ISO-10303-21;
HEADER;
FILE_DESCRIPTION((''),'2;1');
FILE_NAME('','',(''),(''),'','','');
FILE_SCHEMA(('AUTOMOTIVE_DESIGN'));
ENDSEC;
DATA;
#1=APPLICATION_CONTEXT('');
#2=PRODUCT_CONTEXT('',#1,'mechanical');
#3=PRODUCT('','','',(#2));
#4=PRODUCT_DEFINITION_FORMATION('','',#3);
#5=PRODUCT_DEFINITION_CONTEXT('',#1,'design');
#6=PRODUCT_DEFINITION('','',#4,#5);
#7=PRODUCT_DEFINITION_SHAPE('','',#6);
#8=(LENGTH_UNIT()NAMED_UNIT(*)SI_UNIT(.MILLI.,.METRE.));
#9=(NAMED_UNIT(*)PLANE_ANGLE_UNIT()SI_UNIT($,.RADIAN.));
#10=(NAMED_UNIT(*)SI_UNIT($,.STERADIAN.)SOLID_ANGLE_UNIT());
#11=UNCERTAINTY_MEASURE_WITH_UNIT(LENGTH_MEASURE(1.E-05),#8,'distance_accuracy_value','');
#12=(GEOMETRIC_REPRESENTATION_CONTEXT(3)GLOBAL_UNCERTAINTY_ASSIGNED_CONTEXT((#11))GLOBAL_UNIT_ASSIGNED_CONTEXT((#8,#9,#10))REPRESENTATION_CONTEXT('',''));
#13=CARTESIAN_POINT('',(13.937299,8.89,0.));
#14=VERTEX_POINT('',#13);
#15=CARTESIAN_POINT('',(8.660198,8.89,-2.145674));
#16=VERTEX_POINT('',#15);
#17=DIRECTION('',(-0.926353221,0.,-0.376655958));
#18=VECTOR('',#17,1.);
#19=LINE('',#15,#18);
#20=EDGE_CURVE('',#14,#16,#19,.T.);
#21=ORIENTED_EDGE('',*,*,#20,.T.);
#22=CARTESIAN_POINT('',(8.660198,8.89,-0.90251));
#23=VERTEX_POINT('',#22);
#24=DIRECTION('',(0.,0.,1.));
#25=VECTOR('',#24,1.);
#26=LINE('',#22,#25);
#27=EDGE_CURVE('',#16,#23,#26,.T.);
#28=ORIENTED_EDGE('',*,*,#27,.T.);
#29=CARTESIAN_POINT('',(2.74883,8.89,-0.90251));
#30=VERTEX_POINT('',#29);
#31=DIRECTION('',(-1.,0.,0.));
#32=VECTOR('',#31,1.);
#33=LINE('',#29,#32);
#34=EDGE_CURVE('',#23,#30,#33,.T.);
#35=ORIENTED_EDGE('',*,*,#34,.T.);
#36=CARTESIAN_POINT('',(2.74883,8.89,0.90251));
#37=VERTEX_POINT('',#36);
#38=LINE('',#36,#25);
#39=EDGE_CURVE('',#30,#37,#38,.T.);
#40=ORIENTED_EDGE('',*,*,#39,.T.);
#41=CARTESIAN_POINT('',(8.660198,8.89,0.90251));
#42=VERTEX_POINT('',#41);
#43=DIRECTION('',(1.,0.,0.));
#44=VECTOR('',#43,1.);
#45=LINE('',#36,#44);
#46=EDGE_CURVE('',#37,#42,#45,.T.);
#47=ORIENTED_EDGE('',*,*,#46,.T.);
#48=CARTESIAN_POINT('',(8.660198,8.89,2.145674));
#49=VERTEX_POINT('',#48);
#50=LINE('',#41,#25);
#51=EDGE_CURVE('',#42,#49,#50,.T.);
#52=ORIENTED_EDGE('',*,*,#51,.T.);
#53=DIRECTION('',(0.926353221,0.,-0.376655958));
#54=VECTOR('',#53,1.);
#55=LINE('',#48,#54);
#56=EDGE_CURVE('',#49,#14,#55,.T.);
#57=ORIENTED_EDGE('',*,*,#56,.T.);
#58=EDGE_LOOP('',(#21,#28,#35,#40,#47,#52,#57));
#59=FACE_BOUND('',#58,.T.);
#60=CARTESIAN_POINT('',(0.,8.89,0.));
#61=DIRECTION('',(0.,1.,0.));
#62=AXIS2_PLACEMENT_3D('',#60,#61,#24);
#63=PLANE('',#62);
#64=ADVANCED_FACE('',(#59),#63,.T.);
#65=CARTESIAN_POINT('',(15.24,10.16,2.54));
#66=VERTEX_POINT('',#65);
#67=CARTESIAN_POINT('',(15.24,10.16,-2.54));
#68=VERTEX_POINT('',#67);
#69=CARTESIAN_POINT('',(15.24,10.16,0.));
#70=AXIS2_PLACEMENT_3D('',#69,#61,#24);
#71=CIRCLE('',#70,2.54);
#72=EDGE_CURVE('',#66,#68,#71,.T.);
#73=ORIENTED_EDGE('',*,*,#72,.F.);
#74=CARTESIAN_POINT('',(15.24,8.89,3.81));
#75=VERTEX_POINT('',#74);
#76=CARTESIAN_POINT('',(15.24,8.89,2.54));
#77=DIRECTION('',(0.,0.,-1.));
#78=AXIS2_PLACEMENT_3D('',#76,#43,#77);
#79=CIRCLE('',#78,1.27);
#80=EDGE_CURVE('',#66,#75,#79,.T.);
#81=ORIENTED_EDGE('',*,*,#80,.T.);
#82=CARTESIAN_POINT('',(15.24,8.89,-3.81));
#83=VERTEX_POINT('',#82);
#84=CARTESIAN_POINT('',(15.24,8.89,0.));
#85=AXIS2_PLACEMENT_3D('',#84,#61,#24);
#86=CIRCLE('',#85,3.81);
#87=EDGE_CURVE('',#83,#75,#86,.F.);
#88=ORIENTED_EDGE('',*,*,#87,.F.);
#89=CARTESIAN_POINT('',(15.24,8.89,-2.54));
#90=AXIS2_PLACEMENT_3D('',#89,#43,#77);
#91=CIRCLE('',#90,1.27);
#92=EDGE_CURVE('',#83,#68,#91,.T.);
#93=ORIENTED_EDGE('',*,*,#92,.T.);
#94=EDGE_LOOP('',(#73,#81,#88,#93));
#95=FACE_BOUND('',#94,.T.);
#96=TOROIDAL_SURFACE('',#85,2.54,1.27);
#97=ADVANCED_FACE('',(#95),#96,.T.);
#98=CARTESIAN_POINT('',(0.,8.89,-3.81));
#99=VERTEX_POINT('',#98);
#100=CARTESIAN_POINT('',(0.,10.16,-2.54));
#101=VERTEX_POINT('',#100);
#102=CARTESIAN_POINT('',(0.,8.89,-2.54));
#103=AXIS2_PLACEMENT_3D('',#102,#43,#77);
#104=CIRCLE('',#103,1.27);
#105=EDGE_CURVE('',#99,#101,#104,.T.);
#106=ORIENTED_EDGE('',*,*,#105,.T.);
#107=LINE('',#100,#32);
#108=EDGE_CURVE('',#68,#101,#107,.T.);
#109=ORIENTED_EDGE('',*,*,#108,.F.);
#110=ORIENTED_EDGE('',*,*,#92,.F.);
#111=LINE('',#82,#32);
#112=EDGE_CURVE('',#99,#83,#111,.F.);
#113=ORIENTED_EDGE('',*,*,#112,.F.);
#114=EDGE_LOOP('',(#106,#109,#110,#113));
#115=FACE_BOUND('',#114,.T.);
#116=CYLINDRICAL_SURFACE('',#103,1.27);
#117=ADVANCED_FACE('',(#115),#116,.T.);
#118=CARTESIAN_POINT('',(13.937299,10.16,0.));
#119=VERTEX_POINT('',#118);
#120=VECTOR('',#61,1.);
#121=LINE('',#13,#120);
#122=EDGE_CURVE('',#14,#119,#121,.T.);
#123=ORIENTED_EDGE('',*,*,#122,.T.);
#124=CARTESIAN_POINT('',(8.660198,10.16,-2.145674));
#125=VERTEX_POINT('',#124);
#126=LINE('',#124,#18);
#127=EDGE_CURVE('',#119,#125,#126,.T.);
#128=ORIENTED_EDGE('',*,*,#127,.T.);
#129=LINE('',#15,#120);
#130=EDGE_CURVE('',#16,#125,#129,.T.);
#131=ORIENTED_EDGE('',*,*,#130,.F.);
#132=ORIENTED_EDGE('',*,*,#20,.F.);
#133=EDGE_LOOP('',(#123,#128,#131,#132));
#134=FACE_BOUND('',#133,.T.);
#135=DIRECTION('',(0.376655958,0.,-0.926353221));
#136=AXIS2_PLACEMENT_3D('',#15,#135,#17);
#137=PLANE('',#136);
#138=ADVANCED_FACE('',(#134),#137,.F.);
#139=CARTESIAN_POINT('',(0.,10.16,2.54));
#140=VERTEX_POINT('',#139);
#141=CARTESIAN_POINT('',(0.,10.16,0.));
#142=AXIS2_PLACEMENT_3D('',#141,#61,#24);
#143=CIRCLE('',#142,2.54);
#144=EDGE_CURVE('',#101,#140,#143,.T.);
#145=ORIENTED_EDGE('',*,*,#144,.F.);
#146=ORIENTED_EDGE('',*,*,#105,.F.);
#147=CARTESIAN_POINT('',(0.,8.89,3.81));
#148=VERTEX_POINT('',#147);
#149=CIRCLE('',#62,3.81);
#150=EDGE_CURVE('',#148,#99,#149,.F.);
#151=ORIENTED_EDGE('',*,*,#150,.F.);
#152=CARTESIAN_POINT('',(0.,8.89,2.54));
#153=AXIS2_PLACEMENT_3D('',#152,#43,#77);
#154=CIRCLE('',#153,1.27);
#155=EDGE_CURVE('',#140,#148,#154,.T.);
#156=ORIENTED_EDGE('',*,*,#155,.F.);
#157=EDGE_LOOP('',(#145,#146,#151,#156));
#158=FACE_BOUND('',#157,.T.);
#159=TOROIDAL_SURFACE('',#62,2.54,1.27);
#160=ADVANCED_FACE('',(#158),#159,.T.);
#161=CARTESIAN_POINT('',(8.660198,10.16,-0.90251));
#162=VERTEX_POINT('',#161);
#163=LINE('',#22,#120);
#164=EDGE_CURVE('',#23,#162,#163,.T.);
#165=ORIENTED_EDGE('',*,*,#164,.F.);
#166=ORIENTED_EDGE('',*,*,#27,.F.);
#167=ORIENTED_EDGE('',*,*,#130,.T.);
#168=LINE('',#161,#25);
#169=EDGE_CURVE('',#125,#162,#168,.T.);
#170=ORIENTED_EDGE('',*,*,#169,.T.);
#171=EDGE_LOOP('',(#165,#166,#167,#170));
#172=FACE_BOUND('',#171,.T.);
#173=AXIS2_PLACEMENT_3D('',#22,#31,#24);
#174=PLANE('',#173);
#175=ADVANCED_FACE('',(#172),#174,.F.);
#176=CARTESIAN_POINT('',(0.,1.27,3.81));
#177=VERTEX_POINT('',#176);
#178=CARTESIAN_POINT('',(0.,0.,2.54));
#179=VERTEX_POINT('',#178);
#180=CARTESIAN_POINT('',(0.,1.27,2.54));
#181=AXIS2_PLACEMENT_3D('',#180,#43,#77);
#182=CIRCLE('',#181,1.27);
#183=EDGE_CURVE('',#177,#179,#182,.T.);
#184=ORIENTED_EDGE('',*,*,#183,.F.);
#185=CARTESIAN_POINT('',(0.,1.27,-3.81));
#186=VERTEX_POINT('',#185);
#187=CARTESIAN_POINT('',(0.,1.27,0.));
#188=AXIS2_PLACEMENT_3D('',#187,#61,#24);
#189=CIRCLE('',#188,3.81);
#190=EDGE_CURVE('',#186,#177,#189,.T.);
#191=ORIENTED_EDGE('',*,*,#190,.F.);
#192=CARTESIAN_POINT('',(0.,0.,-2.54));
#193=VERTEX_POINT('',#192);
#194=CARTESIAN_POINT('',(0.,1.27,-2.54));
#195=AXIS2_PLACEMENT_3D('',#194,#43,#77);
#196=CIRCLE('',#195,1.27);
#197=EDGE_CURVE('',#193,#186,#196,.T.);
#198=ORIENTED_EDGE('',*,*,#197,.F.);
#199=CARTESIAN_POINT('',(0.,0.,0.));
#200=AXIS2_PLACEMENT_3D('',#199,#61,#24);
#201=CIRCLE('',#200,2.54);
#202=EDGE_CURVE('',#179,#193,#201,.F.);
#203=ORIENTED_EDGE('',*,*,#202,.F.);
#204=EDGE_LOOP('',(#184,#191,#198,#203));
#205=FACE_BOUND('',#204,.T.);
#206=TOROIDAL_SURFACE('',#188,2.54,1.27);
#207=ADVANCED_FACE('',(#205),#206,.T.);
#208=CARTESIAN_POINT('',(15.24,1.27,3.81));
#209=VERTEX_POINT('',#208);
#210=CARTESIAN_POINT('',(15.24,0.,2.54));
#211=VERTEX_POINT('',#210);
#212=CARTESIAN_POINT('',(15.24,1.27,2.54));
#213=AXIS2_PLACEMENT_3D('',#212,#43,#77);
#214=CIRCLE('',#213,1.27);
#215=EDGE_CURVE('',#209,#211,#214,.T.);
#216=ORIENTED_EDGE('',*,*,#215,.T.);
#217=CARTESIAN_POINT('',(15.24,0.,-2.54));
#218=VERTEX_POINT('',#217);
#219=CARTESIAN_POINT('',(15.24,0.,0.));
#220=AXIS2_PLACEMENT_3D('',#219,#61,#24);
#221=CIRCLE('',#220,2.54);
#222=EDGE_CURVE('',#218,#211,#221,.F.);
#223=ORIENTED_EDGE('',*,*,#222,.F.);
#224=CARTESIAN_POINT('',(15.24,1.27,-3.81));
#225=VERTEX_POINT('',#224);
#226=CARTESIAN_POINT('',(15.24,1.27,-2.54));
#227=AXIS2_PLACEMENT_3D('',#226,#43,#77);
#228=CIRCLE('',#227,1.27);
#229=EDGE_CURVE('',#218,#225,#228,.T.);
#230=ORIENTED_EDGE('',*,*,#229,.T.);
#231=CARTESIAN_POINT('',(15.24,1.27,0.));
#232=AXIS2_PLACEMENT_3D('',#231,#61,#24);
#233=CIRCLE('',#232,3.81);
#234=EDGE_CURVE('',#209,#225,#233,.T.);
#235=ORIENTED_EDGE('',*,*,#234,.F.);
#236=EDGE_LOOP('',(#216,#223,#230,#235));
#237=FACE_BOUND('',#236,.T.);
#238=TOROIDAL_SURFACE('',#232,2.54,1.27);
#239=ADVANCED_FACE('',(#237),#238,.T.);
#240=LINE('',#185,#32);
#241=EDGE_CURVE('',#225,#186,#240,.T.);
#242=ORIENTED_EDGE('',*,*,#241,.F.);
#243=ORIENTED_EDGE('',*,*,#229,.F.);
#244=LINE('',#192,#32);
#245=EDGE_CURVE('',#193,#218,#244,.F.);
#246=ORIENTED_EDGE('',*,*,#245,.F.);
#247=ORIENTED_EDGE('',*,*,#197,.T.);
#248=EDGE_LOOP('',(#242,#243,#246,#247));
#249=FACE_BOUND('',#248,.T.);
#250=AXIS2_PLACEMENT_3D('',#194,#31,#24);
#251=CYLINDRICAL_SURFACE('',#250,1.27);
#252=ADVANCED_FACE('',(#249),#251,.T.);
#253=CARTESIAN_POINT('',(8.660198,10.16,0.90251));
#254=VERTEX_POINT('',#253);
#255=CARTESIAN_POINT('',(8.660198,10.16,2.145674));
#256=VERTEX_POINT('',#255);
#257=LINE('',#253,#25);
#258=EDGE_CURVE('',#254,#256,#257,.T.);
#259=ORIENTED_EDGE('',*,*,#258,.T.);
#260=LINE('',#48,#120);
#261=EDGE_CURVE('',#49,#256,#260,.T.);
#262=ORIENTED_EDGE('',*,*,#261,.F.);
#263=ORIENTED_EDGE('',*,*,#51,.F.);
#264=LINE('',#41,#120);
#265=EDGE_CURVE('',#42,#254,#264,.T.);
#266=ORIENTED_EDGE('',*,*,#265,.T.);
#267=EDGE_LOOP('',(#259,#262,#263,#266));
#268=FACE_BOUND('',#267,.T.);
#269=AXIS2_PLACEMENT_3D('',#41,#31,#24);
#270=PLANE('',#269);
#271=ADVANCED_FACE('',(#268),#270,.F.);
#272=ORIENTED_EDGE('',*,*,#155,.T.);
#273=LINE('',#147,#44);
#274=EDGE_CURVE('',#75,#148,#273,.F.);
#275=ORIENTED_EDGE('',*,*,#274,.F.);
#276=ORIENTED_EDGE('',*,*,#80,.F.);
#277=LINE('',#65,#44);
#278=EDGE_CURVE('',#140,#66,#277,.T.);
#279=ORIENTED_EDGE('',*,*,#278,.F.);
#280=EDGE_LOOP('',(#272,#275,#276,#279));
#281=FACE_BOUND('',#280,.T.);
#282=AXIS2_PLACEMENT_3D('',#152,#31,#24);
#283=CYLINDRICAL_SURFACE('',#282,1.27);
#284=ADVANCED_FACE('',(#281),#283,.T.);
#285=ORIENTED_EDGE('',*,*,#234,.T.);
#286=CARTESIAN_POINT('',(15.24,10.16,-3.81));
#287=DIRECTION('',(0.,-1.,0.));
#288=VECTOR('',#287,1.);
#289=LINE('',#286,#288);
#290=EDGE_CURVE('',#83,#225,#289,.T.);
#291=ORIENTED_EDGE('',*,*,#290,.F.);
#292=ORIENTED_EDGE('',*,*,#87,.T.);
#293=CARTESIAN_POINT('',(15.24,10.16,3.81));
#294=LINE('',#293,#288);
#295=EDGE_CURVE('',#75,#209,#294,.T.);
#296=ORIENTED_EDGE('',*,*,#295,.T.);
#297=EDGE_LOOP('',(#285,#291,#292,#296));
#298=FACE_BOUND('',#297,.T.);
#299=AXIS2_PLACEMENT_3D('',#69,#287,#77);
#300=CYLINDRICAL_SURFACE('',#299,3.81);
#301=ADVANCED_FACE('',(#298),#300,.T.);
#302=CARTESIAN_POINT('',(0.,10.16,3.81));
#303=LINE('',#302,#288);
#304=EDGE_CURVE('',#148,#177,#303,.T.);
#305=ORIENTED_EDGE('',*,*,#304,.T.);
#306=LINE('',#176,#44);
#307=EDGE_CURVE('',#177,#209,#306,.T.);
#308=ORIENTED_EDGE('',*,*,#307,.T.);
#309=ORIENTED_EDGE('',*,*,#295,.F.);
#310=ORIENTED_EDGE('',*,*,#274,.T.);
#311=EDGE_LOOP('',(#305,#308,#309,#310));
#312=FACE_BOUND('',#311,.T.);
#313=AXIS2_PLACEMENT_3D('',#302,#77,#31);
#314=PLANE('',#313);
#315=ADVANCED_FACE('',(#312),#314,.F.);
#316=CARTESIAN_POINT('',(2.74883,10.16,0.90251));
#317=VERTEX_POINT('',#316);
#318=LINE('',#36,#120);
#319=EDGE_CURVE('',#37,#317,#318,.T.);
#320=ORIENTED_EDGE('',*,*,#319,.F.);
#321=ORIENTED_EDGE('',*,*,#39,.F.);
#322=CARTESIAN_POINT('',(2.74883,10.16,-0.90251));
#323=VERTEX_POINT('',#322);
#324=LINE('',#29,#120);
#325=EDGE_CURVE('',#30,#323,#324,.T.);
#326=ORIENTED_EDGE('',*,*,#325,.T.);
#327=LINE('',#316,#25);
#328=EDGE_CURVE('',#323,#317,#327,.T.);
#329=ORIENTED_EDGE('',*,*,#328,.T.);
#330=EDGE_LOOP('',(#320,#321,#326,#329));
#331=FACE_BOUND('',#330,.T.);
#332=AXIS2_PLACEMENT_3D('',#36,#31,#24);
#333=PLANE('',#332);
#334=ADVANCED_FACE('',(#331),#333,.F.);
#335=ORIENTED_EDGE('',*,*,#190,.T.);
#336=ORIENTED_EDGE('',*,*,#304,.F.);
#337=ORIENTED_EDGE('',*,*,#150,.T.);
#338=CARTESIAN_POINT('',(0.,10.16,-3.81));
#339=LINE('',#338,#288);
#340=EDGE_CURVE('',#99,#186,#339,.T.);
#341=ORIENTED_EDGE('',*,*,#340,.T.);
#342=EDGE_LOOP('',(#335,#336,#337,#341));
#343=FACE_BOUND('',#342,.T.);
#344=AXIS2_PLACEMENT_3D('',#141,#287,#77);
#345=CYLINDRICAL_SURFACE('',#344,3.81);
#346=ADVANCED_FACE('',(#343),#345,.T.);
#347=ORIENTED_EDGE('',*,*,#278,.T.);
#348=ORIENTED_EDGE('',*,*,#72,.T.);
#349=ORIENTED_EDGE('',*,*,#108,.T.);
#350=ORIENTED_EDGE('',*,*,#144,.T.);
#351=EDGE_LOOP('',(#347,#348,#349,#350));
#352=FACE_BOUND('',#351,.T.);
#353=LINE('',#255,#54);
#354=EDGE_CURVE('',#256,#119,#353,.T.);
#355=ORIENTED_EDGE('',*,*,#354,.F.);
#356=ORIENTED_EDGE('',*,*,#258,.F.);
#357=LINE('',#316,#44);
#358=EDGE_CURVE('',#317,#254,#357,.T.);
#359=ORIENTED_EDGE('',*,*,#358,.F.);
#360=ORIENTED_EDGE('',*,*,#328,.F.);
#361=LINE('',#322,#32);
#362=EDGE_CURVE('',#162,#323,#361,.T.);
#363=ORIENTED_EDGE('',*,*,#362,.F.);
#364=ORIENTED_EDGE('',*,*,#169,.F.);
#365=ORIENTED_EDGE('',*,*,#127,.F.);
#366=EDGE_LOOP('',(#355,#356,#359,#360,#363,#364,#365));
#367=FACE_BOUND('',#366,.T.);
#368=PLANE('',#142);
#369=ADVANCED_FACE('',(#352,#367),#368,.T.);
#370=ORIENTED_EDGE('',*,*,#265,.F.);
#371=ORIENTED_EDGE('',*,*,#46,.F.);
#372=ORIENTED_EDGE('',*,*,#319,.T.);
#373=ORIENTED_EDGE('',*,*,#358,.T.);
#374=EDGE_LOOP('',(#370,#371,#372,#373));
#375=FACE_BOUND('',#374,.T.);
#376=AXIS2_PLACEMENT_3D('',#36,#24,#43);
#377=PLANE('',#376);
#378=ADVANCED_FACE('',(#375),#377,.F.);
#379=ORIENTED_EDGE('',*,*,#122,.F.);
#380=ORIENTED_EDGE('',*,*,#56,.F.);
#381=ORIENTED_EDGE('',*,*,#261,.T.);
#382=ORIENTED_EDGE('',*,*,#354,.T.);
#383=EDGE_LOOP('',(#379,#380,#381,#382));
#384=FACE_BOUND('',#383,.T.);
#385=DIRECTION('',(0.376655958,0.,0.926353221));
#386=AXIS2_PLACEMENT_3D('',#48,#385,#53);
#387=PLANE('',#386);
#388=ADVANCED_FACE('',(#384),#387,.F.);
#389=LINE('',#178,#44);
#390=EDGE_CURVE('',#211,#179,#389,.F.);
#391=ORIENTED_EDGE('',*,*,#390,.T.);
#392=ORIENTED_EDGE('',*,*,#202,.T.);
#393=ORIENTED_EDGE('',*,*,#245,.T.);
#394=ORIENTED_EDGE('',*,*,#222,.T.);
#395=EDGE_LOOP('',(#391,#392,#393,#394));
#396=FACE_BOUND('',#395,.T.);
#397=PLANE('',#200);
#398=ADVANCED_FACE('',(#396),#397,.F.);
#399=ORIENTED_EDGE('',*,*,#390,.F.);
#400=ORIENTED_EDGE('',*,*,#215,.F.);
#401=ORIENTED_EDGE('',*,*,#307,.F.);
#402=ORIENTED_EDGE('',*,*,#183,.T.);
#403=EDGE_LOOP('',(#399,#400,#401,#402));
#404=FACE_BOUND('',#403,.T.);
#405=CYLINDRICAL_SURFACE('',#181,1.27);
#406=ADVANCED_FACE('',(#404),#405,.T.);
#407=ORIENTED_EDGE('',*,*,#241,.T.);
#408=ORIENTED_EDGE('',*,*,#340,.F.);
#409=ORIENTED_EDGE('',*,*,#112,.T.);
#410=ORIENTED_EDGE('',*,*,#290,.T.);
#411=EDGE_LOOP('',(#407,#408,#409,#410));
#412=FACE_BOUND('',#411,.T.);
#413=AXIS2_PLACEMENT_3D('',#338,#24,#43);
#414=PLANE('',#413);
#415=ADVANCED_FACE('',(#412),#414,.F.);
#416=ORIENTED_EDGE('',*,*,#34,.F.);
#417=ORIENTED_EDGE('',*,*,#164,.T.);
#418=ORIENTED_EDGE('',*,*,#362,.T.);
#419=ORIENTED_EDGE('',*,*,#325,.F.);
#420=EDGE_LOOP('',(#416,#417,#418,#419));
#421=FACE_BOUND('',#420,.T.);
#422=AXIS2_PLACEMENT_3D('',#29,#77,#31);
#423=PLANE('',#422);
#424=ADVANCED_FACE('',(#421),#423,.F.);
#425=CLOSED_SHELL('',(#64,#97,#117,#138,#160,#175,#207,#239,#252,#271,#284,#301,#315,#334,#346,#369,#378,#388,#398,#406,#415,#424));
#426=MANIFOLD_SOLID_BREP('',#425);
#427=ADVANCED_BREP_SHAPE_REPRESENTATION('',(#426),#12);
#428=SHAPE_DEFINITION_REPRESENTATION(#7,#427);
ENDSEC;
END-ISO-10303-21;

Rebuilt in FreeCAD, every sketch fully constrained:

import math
import FreeCAD as App
import Part
import Sketcher
Q = App.Units.Quantity


def edges_at(feature, points):
    """Names of the edges that pass closest to the given points."""
    edges = feature.Shape.Edges
    near = lambda p: min(range(len(edges)), key=lambda i: edges[i].distToShape(Part.Vertex(*p))[0])
    return sorted({f"Edge{near(p) + 1}" for p in points})


def add_polygon(sketch, points):
    """Adds a closed chain of lines whose ends are joined by coincident constraints."""
    first, n = sketch.GeometryCount, len(points)
    for a, b in zip(points, points[1:] + points[:1]):
        sketch.addGeometry(Part.LineSegment(App.Vector(*a, 0), App.Vector(*b, 0)), False)
    for i in range(n):
        sketch.addConstraint(Sketcher.Constraint("Coincident", first + i, 2, first + (i + 1) % n, 1))

doc = App.newDocument("Part")
params = doc.addObject("Spreadsheet::Sheet", "Params")
for row, (alias, value) in enumerate([
    ("sketch1_radius", "0.15 in"),
    ("sketch1_width", "0.6 in"),
    ("pad1_length", "0.4 in"),
    ("pocket1_length", "0.05 in"),
    ("fillet_radius", "0.05 in"),
    ("fillet2_radius", "0.05 in"),
], start=1):
    params.set(f"A{row}", alias)
    params.set(f"B{row}", "=" + value)
    params.setAlias(f"B{row}", alias)

body = doc.addObject("PartDesign::Body", "Body")

sketch1 = body.newObject("Sketcher::SketchObject", "Sketch")
sketch1.AttachmentSupport = (doc.getObject("XZ_Plane"), [""])
sketch1.MapMode = "FlatFace"
sketch1.addGeometry([
    Part.LineSegment(App.Vector(15.2, -3.8, 0), App.Vector(0, -3.8, 0)),
    Part.ArcOfCircle(Part.Circle(App.Vector(0, 0, 0), App.Vector(0, 0, 1), 3.8), math.radians(90), math.radians(270)),
    Part.LineSegment(App.Vector(0, 3.8, 0), App.Vector(15.2, 3.8, 0)),
    Part.ArcOfCircle(Part.Circle(App.Vector(15.2, 0, 0), App.Vector(0, 0, 1), 3.8), math.radians(-90), math.radians(90)),
], False)
sketch1.addConstraint([
    Sketcher.Constraint("Tangent", 0, 2, 1, 2),
    Sketcher.Constraint("Tangent", 1, 1, 2, 1),
    Sketcher.Constraint("Tangent", 2, 2, 3, 2),
    Sketcher.Constraint("Tangent", 3, 1, 0, 1),
    Sketcher.Constraint("Horizontal", 0),
    Sketcher.Constraint("Horizontal", 2),
    Sketcher.Constraint("Coincident", 1, 3, -1, 1),
    Sketcher.Constraint("Radius", 1, Q("0.15 in")),
    Sketcher.Constraint("DistanceX", 0, 2, 0, 1, Q("0.6 in")),
])
sketch1.setExpression("Constraints[7]", "Params.sketch1_radius")
sketch1.setExpression("Constraints[8]", "Params.sketch1_width")
pad1 = body.newObject("PartDesign::Pad", "Pad")
pad1.Profile = sketch1
pad1.setExpression("Length", "Params.pad1_length")
pad1.Reversed = True

sketch2 = body.newObject("Sketcher::SketchObject", "Sketch001")
sketch2.AttachmentSupport = (doc.getObject("XZ_Plane"), [""])
sketch2.MapMode = "FlatFace"
sketch2.AttachmentOffset = App.Placement(App.Vector(0, 0, -0.4 * 25.4), App.Rotation())
add_polygon(sketch2, [(2.7, -0.9), (2.7, 0.9), (8.7, 0.9), (8.7, 2.1), (13.9, 0), (8.7, -2.1), (8.7, -0.9)])
sketch2.addConstraint([
    Sketcher.Constraint("Vertical", 0),
    Sketcher.Constraint("Horizontal", 1),
    Sketcher.Constraint("Vertical", 2),
    Sketcher.Constraint("Vertical", 5),
    Sketcher.Constraint("Horizontal", 6),
    Sketcher.Constraint("Symmetric", 2, 2, 4, 2, -1),
    Sketcher.Constraint("PointOnObject", 3, 2, -1),
    Sketcher.Constraint("Equal", 2, 5),
    Sketcher.Constraint("DistanceX", 1, 1, 1, 2, Q("5.911368 mm")),
    Sketcher.Constraint("DistanceY", 0, 1, 0, 2, Q("1.805021 mm")),
    Sketcher.Constraint("DistanceX", -1, 1, 3, 2, Q("13.937299 mm")),
    Sketcher.Constraint("DistanceX", 1, 2, 3, 2, Q("5.277101 mm")),
    Sketcher.Constraint("Distance", 3, Q("5.69664 mm")),
])
pocket1 = body.newObject("PartDesign::Pocket", "Pocket")
pocket1.Profile = sketch2
pocket1.setExpression("Length", "Params.pocket1_length")
pocket1.Reversed = True
doc.recompute()

fillet = body.newObject("PartDesign::Fillet", "Fillet")
fillet.Base = (pocket1, edges_at(pocket1, [
    (19.05, 10.16, 0),
    (7.62, 10.16, -3.81),
    (-3.81, 10.16, 0),
    (7.62, 10.16, 3.81),
]))
fillet.setExpression("Radius", "Params.fillet_radius")
doc.recompute()

fillet2 = body.newObject("PartDesign::Fillet", "Fillet001")
fillet2.Base = (fillet, edges_at(fillet, [
    (7.62, 0, -3.81),
    (19.05, 0, 0),
    (7.62, 0, 3.81),
    (-3.81, 0, 0),
]))
fillet2.setExpression("Radius", "Params.fillet2_radius")

doc.recompute()
